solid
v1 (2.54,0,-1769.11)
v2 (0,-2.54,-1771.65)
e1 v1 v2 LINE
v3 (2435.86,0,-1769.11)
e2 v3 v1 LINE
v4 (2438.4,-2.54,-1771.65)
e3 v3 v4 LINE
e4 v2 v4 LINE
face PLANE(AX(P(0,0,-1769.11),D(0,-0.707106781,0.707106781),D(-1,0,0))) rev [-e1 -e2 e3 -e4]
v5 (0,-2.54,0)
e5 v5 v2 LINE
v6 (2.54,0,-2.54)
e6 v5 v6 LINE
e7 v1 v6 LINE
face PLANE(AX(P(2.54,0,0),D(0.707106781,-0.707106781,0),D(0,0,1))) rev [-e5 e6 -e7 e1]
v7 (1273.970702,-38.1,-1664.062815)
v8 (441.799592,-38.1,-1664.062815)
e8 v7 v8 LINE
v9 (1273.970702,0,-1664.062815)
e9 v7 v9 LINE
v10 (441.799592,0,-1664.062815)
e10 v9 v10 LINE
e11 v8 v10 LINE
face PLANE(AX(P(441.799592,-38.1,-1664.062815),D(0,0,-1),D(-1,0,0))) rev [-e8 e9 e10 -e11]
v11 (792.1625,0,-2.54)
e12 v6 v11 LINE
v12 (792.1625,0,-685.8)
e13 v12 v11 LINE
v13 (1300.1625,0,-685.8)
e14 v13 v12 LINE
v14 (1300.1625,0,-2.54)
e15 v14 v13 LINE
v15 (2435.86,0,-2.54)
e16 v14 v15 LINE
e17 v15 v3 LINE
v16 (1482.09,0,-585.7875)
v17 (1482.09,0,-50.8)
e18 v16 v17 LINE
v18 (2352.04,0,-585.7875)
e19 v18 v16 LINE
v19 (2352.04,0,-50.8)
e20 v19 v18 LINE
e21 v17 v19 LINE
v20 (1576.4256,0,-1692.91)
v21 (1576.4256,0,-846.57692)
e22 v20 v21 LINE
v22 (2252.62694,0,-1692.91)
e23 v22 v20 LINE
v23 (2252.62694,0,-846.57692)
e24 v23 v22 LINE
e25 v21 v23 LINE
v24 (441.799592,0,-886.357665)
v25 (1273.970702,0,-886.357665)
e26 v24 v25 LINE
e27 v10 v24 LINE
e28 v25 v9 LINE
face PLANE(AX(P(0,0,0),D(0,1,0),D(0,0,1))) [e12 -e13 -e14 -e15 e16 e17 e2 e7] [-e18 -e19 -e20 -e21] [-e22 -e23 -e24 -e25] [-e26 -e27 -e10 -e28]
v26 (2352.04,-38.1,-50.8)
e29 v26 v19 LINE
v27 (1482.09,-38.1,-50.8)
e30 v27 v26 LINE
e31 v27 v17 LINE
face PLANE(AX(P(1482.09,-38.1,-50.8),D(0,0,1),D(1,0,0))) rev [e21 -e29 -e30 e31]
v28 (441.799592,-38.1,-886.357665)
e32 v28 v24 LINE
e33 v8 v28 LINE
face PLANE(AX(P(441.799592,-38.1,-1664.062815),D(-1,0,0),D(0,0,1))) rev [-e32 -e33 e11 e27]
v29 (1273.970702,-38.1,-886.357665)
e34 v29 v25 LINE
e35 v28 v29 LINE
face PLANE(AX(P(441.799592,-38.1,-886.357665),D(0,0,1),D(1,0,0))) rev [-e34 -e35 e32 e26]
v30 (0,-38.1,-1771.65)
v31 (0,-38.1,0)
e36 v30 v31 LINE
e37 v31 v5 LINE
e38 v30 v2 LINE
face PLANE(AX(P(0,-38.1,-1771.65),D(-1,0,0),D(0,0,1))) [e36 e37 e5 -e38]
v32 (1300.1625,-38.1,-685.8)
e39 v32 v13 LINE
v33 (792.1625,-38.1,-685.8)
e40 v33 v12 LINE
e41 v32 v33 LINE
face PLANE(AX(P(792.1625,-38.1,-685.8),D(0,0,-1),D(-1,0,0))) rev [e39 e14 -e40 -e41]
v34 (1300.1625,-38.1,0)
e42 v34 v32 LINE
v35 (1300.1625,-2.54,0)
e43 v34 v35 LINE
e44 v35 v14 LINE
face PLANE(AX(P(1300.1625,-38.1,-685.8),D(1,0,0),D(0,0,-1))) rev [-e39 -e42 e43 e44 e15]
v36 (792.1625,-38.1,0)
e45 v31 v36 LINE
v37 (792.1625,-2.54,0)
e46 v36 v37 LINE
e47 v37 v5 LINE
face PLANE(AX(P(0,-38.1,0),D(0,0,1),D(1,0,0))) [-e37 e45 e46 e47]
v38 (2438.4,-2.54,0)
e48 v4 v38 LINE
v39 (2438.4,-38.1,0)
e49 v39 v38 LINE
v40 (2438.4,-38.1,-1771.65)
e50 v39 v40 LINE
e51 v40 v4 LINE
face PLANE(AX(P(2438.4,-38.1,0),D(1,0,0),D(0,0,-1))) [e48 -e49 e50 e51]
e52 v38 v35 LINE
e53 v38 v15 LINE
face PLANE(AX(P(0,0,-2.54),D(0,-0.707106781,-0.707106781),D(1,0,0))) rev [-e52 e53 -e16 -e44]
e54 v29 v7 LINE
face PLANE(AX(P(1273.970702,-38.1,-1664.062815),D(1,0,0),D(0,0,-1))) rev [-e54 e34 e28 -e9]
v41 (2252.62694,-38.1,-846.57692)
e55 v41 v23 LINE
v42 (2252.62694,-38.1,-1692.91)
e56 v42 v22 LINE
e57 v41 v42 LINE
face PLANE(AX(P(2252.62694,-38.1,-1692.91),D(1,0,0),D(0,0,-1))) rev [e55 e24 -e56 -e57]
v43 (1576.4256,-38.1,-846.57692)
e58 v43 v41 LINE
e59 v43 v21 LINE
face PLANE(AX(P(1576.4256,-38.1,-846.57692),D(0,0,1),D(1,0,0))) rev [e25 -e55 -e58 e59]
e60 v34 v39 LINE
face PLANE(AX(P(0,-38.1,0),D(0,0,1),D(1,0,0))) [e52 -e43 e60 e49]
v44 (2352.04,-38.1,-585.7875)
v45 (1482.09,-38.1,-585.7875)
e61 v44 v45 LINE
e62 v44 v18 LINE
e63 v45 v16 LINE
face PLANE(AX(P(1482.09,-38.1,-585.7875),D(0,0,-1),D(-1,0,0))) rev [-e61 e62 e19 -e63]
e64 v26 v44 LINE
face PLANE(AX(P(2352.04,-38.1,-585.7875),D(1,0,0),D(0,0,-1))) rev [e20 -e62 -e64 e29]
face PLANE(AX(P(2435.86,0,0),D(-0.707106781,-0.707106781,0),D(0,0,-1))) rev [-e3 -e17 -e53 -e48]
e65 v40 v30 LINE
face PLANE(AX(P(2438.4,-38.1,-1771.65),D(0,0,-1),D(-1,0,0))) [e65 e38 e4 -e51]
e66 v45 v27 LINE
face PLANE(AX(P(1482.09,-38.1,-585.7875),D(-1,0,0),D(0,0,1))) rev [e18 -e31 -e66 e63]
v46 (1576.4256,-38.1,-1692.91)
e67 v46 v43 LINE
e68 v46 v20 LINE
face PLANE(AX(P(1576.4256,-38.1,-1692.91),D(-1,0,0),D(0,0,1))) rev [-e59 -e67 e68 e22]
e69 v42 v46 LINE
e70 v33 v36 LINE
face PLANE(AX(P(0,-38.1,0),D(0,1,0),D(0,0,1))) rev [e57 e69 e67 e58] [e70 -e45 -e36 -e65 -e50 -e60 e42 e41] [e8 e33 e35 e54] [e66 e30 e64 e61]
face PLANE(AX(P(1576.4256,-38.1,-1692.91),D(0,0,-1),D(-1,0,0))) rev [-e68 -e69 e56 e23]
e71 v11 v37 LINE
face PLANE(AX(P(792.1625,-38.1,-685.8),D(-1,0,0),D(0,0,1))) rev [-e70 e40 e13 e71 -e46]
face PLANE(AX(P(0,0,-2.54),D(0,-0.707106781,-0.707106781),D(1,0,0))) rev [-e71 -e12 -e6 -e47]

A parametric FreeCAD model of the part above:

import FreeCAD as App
import Part
import Sketcher
from FreeCAD import Vector
Q = App.Units.Quantity


def edges_at(feature, points):
    """Names of the edges that pass closest to the given points."""
    edges = feature.Shape.Edges
    near = lambda p: min(range(len(edges)), key=lambda i: edges[i].distToShape(Part.Vertex(*p))[0])
    return sorted({f"Edge{near(p) + 1}" for p in points})


def add_polygon(sketch, points):
    """Adds a closed chain of lines whose ends are joined by coincident constraints."""
    first, n = sketch.GeometryCount, len(points)
    for a, b in zip(points, points[1:] + points[:1]):
        sketch.addGeometry(Part.LineSegment(App.Vector(*a, 0), App.Vector(*b, 0)), False)
    for i in range(n):
        sketch.addConstraint(Sketcher.Constraint("Coincident", first + i, 2, first + (i + 1) % n, 1))

doc = App.newDocument("Part")
body = doc.addObject("PartDesign::Body", "Body")

sketch1 = body.newObject("Sketcher::SketchObject", "Sketch")
sketch1.AttachmentSupport = (doc.getObject("XZ_Plane"), [""])
sketch1.MapMode = "FlatFace"
add_polygon(sketch1, [(0, -1772), (0, 0), (2438, 0), (2438, -1772)])
sketch1.addConstraint([
    Sketcher.Constraint("Vertical", 0),
    Sketcher.Constraint("Horizontal", 1),
    Sketcher.Constraint("Vertical", 2),
    Sketcher.Constraint("Horizontal", 3),
    Sketcher.Constraint("Coincident", 0, 2, -1, 1),
    Sketcher.Constraint("DistanceX", 1, 1, 1, 2, Q("96 in")),
    Sketcher.Constraint("DistanceY", 0, 1, 0, 2, Q("69.75 in")),
])
pad1 = body.newObject("PartDesign::Pad", "Pad")
pad1.Profile = sketch1
pad1.Length = Q("1.5 in")
doc.recompute()

chamfer = body.newObject("PartDesign::Chamfer", "Chamfer")
chamfer.Base = (pad1, edges_at(pad1, [
    (0, 0, -885.825),
    (1219.2, 0, -1771.65),
    (2438.4, 0, -885.825),
    (1219.2, 0, 0),
]))
chamfer.Size = Q("0.1 in")

sketch2 = body.newObject("Sketcher::SketchObject", "Sketch001")
sketch2.AttachmentSupport = (doc.getObject("XZ_Plane"), [""])
sketch2.MapMode = "FlatFace"
add_polygon(sketch2, [(1482, -586), (1482, -51), (2352, -51), (2352, -586)])
sketch2.addConstraint([
    Sketcher.Constraint("Vertical", 0),
    Sketcher.Constraint("Horizontal", 1),
    Sketcher.Constraint("Vertical", 2),
    Sketcher.Constraint("Horizontal", 3),
    Sketcher.Constraint("DistanceY", 0, 2, -1, 1, Q("2 in")),
    Sketcher.Constraint("DistanceX", 1, 1, 1, 2, Q("34.25 in")),
    Sketcher.Constraint("DistanceX", -1, 1, 1, 2, Q("92.6 in")),
    Sketcher.Constraint("DistanceY", 0, 1, 0, 2, Q("21.0625 in")),
])
pocket1 = body.newObject("PartDesign::Pocket", "Pocket")
pocket1.Profile = sketch2
pocket1.Type = "ThroughAll"
pocket1.Reversed = True

sketch3 = body.newObject("Sketcher::SketchObject", "Sketch002")
sketch3.AttachmentSupport = (doc.getObject("XZ_Plane"), [""])
sketch3.MapMode = "FlatFace"
add_polygon(sketch3, [(792, -686), (792, 0), (1300, 0), (1300, -686)])
sketch3.addConstraint([
    Sketcher.Constraint("Vertical", 0),
    Sketcher.Constraint("Horizontal", 1),
    Sketcher.Constraint("Vertical", 2),
    Sketcher.Constraint("Horizontal", 3),
    Sketcher.Constraint("PointOnObject", 0, 2, -1),
    Sketcher.Constraint("DistanceX", 1, 1, 1, 2, Q("20 in")),
    Sketcher.Constraint("DistanceY", 0, 1, 0, 2, Q("27 in")),
    Sketcher.Constraint("DistanceX", -1, 1, 0, 2, Q("31.1875 in")),
])
pocket2 = body.newObject("PartDesign::Pocket", "Pocket001")
pocket2.Profile = sketch3
pocket2.Type = "ThroughAll"
pocket2.Reversed = True

sketch4 = body.newObject("Sketcher::SketchObject", "Sketch003")
sketch4.AttachmentSupport = (doc.getObject("XZ_Plane"), [""])
sketch4.MapMode = "FlatFace"
add_polygon(sketch4, [(1576, -1693), (1576, -847), (2253, -847), (2253, -1693)])
sketch4.addConstraint([
    Sketcher.Constraint("Vertical", 0),
    Sketcher.Constraint("Horizontal", 1),
    Sketcher.Constraint("Vertical", 2),
    Sketcher.Constraint("Horizontal", 3),
    Sketcher.Constraint("DistanceY", 2, 2, -1, 1, Q("66.65 in")),
    Sketcher.Constraint("DistanceX", 1, 1, 1, 2, Q("26.6221 in")),
    Sketcher.Constraint("DistanceY", 0, 1, 0, 2, Q("33.3202 in")),
    Sketcher.Constraint("DistanceX", -1, 1, 0, 2, Q("62.064 in")),
])
pocket3 = body.newObject("PartDesign::Pocket", "Pocket002")
pocket3.Profile = sketch4
pocket3.Type = "ThroughAll"
pocket3.Reversed = True

sketch5 = body.newObject("Sketcher::SketchObject", "Sketch004")
sketch5.AttachmentSupport = (doc.getObject("XZ_Plane"), [""])
sketch5.MapMode = "FlatFace"
add_polygon(sketch5, [(442, -1664), (442, -886), (1274, -886), (1274, -1664)])
sketch5.addConstraint([
    Sketcher.Constraint("Vertical", 0),
    Sketcher.Constraint("Horizontal", 1),
    Sketcher.Constraint("Vertical", 2),
    Sketcher.Constraint("Horizontal", 3),
    Sketcher.Constraint("DistanceX", 1, 1, 1, 2, 832.17111),
    Sketcher.Constraint("DistanceY", 0, 1, 0, 2, 777.70515),
    Sketcher.Constraint("DistanceX", -1, 1, 0, 2, 441.799592),
    Sketcher.Constraint("DistanceY", 0, 2, -1, 1, 886.357665),
])
pocket4 = body.newObject("PartDesign::Pocket", "Pocket003")
pocket4.Profile = sketch5
pocket4.Type = "ThroughAll"
pocket4.Reversed = True

doc.recompute()
